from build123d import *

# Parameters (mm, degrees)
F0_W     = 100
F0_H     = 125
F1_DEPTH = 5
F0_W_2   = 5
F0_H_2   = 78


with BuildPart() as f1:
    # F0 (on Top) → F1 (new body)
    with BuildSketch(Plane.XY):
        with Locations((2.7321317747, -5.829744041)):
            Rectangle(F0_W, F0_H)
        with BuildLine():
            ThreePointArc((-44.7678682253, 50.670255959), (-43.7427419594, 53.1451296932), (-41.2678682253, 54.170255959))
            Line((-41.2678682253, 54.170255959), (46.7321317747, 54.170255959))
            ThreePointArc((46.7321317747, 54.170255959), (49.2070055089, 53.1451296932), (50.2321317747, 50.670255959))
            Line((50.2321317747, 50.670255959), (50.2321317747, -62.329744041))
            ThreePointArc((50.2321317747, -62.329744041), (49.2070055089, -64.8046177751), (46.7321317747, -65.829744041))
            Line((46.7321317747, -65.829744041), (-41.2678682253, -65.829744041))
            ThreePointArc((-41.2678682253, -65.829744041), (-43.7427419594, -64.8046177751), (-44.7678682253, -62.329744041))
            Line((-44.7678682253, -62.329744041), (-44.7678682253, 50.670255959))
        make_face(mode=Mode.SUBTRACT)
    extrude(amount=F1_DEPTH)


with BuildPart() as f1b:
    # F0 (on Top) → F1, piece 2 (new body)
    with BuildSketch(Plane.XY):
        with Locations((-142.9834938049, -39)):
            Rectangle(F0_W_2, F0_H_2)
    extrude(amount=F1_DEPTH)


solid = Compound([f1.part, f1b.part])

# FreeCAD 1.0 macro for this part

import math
import FreeCAD as App
import Part
import Sketcher
from FreeCAD import Vector

doc = App.newDocument("Part")
params = doc.addObject("Spreadsheet::Sheet", "Params")
for row, (alias, value) in enumerate([
    ("sketch1_radius", "3.5 mm"),
    ("sketch1_width", "100 mm"),
    ("sketch1_width2", "88 mm"),
    ("sketch1_height", "125 mm"),
    ("sketch1_height2", "113 mm"),
    ("pad1_length", "5 mm"),
    ("sketch2_width", "5 mm"),
    ("sketch2_height", "78 mm"),
    ("pad2_length", "5 mm"),
], start=1):
    params.set(f"A{row}", alias)
    params.set(f"B{row}", "=" + value)
    params.setAlias(f"B{row}", alias)

body = doc.addObject("PartDesign::Body", "Body")

# Sketch on XY plane
sketch1 = doc.addObject("Sketcher::SketchObject", "Sketch")
body.addObject(sketch1)
sketch1.AttachmentSupport = (doc.XY_Plane, [""])
sketch1.MapMode = "FlatFace"
sketch1.addGeometry([
    Part.LineSegment(Vector(-47.267868, 56.670256, 0), Vector(-47.267868, -68.329744, 0)),  # 0
    Part.LineSegment(Vector(-47.267868, -68.329744, 0), Vector(52.732132, -68.329744, 0)),  # 1
    Part.LineSegment(Vector(52.732132, -68.329744, 0), Vector(52.732132, 56.670256, 0)),  # 2
    Part.LineSegment(Vector(52.732132, 56.670256, 0), Vector(-47.267868, 56.670256, 0)),  # 3
    Part.LineSegment(Vector(-44.767868, -62.329744, 0), Vector(-44.767868, 50.670256, 0)),  # 4
    Part.ArcOfCircle(Part.Circle(Vector(-41.267868, 50.670256, 0), Vector(0, 0, 1), 3.5), math.radians(90), math.radians(180)),  # 5
    Part.LineSegment(Vector(-41.267868, 54.170256, 0), Vector(46.732132, 54.170256, 0)),  # 6
    Part.ArcOfCircle(Part.Circle(Vector(46.732132, 50.670256, 0), Vector(0, 0, 1), 3.5), math.radians(0), math.radians(90)),  # 7
    Part.LineSegment(Vector(50.232132, 50.670256, 0), Vector(50.232132, -62.329744, 0)),  # 8
    Part.ArcOfCircle(Part.Circle(Vector(46.732132, -62.329744, 0), Vector(0, 0, 1), 3.5), math.radians(-90), math.radians(0)),  # 9
    Part.LineSegment(Vector(46.732132, -65.829744, 0), Vector(-41.267868, -65.829744, 0)),  # 10
    Part.ArcOfCircle(Part.Circle(Vector(-41.267868, -62.329744, 0), Vector(0, 0, 1), 3.5), math.radians(180), math.radians(270)),  # 11
], False)
sketch1.addConstraint([
    Sketcher.Constraint("Coincident", 0, 2, 1, 1),
    Sketcher.Constraint("Coincident", 1, 2, 2, 1),
    Sketcher.Constraint("Coincident", 2, 2, 3, 1),
    Sketcher.Constraint("Coincident", 3, 2, 0, 1),
    Sketcher.Constraint("Tangent", 4, 2, 5, 2),
    Sketcher.Constraint("Tangent", 5, 1, 6, 1),
    Sketcher.Constraint("Tangent", 6, 2, 7, 2),
    Sketcher.Constraint("Tangent", 7, 1, 8, 1),
    Sketcher.Constraint("Tangent", 8, 2, 9, 2),
    Sketcher.Constraint("Tangent", 9, 1, 10, 1),
    Sketcher.Constraint("Tangent", 10, 2, 11, 2),
    Sketcher.Constraint("Tangent", 11, 1, 4, 1),
    Sketcher.Constraint("Vertical", 0),
    Sketcher.Constraint("Horizontal", 1),
    Sketcher.Constraint("Vertical", 2),
    Sketcher.Constraint("Horizontal", 3),
    Sketcher.Constraint("Vertical", 4),
    Sketcher.Constraint("Horizontal", 6),
    Sketcher.Constraint("Vertical", 8),
    Sketcher.Constraint("Horizontal", 10),
    Sketcher.Constraint("Equal", 5, 7),
    Sketcher.Constraint("Equal", 7, 9),
    Sketcher.Constraint("Equal", 9, 11),
    Sketcher.Constraint("Radius", 5, 3.5),
    Sketcher.Constraint("DistanceX", 1, 1, 1, 2, 100.0),
    Sketcher.Constraint("DistanceX", 6, 1, 6, 2, 88.0),
    Sketcher.Constraint("DistanceY", 0, 2, 0, 1, 125.0),
    Sketcher.Constraint("DistanceY", 4, 1, 4, 2, 113.0),
    Sketcher.Constraint("DistanceX", 0, 2, 11, 3, 6.0),
    Sketcher.Constraint("DistanceY", 0, 2, 11, 3, 6.0),
    Sketcher.Constraint("DistanceX", 5, 3, -1, 1, 41.267868),
    Sketcher.Constraint("DistanceY", -1, 1, 5, 3, 50.670256),
])
sketch1.setExpression("Constraints[23]", "Params.sketch1_radius")
sketch1.setExpression("Constraints[24]", "Params.sketch1_width")
sketch1.setExpression("Constraints[25]", "Params.sketch1_width2")
sketch1.setExpression("Constraints[26]", "Params.sketch1_height")
sketch1.setExpression("Constraints[27]", "Params.sketch1_height2")
pad1 = doc.addObject("PartDesign::Pad", "Pad")
body.addObject(pad1)
pad1.Profile = sketch1
pad1.setExpression("Length", "Params.pad1_length")
body2 = doc.addObject("PartDesign::Body", "Body001")

# Sketch on XY plane
sketch2 = doc.addObject("Sketcher::SketchObject", "Sketch001")
body2.addObject(sketch2)
sketch2.AttachmentSupport = (doc.getObject("XY_Plane001"), [""])
sketch2.MapMode = "FlatFace"
sketch2.addGeometry([
    Part.LineSegment(Vector(-145.483494, 0, 0), Vector(-145.483494, -78, 0)),
    Part.LineSegment(Vector(-145.483494, -78, 0), Vector(-140.483494, -78, 0)),
    Part.LineSegment(Vector(-140.483494, -78, 0), Vector(-140.483494, 0, 0)),
    Part.LineSegment(Vector(-140.483494, 0, 0), Vector(-145.483494, 0, 0)),
], False)
sketch2.addConstraint([
    Sketcher.Constraint("Coincident", 0, 2, 1, 1),
    Sketcher.Constraint("Coincident", 1, 2, 2, 1),
    Sketcher.Constraint("Coincident", 2, 2, 3, 1),
    Sketcher.Constraint("Coincident", 3, 2, 0, 1),
    Sketcher.Constraint("Vertical", 0),
    Sketcher.Constraint("Horizontal", 1),
    Sketcher.Constraint("Vertical", 2),
    Sketcher.Constraint("Horizontal", 3),
    Sketcher.Constraint("PointOnObject", 2, 2, -1),
    Sketcher.Constraint("DistanceX", 1, 1, 1, 2, 5.0),
    Sketcher.Constraint("DistanceY", 0, 2, 0, 1, 78.0),
    Sketcher.Constraint("DistanceX", 0, 2, -1, 1, 145.483494),
])
sketch2.setExpression("Constraints[9]", "Params.sketch2_width")
sketch2.setExpression("Constraints[10]", "Params.sketch2_height")
pad2 = doc.addObject("PartDesign::Pad", "Pad001")
body2.addObject(pad2)
pad2.Profile = sketch2
pad2.setExpression("Length", "Params.pad2_length")

doc.recompute()
